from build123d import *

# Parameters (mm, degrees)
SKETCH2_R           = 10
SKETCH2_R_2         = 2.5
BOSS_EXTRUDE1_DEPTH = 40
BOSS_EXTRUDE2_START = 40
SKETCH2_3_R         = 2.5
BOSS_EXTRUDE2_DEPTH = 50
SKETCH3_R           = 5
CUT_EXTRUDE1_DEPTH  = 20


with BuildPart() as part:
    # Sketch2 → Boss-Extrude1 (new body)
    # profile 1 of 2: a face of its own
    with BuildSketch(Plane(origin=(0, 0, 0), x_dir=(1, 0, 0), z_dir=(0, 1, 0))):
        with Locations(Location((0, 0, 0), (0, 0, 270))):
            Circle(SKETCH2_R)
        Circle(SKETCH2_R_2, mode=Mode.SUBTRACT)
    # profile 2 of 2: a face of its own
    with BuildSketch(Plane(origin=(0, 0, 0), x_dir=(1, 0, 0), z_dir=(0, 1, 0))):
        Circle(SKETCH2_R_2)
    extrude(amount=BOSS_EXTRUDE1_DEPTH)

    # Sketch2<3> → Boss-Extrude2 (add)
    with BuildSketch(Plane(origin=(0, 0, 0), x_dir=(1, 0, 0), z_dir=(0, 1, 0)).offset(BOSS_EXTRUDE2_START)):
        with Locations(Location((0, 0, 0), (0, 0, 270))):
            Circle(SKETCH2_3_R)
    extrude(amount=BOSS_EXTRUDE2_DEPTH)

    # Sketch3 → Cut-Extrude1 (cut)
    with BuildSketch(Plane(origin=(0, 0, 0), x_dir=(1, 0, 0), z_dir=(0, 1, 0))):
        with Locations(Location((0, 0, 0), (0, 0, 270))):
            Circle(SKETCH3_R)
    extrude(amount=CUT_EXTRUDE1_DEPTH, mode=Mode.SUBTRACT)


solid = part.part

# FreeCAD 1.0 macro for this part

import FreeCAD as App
import Part
import Sketcher
Q = App.Units.Quantity

doc = App.newDocument("Part")
body = doc.addObject("PartDesign::Body", "Body")

sketch1 = body.newObject("Sketcher::SketchObject", "Sketch")
sketch1.AttachmentSupport = (doc.getObject("XZ_Plane"), [""])
sketch1.MapMode = "FlatFace"
sketch1.addGeometry(Part.Circle(App.Vector(0, 0, 0), App.Vector(0, 0, 1), 10), False)
sketch1.addConstraint(Sketcher.Constraint("Coincident", 0, 3, -1, 1))
sketch1.addConstraint(Sketcher.Constraint("Diameter", 0, Q("20 mm")))
pad1 = body.newObject("PartDesign::Pad", "Pad")
pad1.Profile = sketch1
pad1.Length = 40
pad1.Reversed = True

sketch2 = body.newObject("Sketcher::SketchObject", "Sketch001")
sketch2.AttachmentSupport = (doc.getObject("XZ_Plane"), [""])
sketch2.MapMode = "FlatFace"
sketch2.AttachmentOffset = App.Placement(App.Vector(0, 0, -40), App.Rotation())
sketch2.addGeometry(Part.Circle(App.Vector(0, 0, 0), App.Vector(0, 0, 1), 2.5), False)
sketch2.addConstraint(Sketcher.Constraint("Coincident", 0, 3, -1, 1))
sketch2.addConstraint(Sketcher.Constraint("Diameter", 0, Q("5 mm")))
pad2 = body.newObject("PartDesign::Pad", "Pad001")
pad2.Profile = sketch2
pad2.Length = 50
pad2.Reversed = True

sketch3 = body.newObject("Sketcher::SketchObject", "Sketch002")
sketch3.AttachmentSupport = (doc.getObject("XZ_Plane"), [""])
sketch3.MapMode = "FlatFace"
sketch3.addGeometry(Part.Circle(App.Vector(0, 0, 0), App.Vector(0, 0, 1), 5), False)
sketch3.addConstraint(Sketcher.Constraint("Coincident", 0, 3, -1, 1))
sketch3.addConstraint(Sketcher.Constraint("Diameter", 0, Q("10 mm")))
pocket1 = body.newObject("PartDesign::Pocket", "Pocket")
pocket1.Profile = sketch3
pocket1.Length = 20

doc.recompute()
